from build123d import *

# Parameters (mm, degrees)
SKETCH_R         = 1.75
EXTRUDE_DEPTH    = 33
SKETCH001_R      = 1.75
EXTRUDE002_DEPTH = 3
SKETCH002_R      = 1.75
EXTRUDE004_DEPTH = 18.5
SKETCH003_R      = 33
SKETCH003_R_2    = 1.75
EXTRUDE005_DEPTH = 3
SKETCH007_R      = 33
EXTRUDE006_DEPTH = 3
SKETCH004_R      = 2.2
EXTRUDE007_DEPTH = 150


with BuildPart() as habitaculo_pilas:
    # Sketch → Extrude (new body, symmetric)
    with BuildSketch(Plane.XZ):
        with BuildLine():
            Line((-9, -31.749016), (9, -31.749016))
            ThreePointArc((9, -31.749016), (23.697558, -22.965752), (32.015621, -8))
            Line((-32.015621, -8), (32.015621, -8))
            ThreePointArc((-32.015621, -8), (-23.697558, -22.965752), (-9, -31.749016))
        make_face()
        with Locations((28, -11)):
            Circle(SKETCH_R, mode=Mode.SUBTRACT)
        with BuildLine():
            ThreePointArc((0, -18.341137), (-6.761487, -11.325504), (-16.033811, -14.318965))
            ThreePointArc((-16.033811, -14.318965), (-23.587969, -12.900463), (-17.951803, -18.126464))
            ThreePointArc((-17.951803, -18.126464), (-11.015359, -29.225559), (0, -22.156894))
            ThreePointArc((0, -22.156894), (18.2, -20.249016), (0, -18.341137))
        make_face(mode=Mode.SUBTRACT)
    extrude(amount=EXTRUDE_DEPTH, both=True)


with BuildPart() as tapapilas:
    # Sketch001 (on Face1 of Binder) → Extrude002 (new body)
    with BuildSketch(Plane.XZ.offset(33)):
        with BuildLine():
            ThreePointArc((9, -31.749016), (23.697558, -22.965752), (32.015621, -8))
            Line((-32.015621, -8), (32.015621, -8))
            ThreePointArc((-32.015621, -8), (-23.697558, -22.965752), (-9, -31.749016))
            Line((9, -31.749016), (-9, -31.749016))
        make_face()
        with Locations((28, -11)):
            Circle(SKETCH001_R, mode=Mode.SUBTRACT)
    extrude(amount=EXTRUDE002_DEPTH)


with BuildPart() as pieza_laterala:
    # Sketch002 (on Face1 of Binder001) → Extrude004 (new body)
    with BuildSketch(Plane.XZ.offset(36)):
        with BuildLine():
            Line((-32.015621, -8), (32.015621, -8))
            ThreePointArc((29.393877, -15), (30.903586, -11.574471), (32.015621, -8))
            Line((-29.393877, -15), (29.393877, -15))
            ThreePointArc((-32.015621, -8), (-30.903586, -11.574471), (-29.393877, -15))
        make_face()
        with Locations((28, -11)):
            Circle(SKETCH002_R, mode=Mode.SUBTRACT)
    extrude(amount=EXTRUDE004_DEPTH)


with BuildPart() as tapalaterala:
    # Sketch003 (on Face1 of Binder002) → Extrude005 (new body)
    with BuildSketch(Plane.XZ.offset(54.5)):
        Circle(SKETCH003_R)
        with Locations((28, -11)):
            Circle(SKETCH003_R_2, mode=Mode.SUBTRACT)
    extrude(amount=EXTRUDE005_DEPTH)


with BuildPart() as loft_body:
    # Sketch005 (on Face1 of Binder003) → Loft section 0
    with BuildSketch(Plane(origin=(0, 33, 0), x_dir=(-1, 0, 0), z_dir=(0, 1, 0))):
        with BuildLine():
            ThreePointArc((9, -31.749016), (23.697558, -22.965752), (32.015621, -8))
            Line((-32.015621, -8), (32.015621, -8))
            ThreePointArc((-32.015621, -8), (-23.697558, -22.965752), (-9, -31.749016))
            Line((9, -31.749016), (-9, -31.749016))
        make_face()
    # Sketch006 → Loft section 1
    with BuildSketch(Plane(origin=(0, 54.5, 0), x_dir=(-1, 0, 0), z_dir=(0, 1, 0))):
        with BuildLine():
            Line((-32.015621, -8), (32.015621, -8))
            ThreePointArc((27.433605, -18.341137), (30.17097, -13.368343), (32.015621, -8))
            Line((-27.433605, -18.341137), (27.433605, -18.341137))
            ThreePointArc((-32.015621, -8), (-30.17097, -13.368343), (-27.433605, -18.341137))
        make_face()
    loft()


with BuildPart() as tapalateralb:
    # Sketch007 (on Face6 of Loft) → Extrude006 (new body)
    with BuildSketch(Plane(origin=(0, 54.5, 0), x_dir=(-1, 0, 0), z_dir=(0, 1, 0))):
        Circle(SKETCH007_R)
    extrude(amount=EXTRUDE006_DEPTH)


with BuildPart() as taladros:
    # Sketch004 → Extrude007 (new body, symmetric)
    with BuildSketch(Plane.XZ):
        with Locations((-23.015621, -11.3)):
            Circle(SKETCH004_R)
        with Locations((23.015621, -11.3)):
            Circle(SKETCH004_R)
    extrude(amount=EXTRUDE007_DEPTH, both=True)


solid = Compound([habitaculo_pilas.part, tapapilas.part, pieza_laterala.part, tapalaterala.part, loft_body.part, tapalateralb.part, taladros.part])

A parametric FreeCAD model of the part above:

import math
import FreeCAD as App
import Part
import Sketcher

doc = App.newDocument("Part")
body = doc.addObject("PartDesign::Body", "Body")

# Sketch on XZ plane
sketch1 = body.newObject("Sketcher::SketchObject", "Sketch")
sketch1.AttachmentSupport = (doc.getObject("XZ_Plane"), [""])
sketch1.MapMode = "FlatFace"
sketch1.addGeometry(Part.LineSegment(App.Vector(-9, -31.749016, 0), App.Vector(9, -31.749016, 0)), False)
sketch1.addGeometry(Part.ArcOfCircle(Part.Circle(App.Vector(0.000001, -0.000002, 0), App.Vector(0, 0, 1), 32.999998), math.radians(-74.173381), math.radians(-14.029663)), False)
sketch1.addGeometry(Part.LineSegment(App.Vector(32.015621, -8, 0), App.Vector(-32.015621, -8, 0)), False)
sketch1.addGeometry(Part.ArcOfCircle(Part.Circle(App.Vector(-0.000001, -0.000002, 0), App.Vector(0, 0, 1), 32.999998), math.radians(-165.970337), math.radians(-105.826619)), False)
sketch1.addGeometry(Part.ArcOfCircle(Part.Circle(App.Vector(-9, -20.249016, 0), App.Vector(0, 0, 1), 9.2), math.radians(11.968747), math.radians(139.866503)), False)
sketch1.addGeometry(Part.ArcOfCircle(Part.Circle(App.Vector(9, -20.249015, 0), App.Vector(0, 0, 1), 9.2), math.radians(-168.031254), math.radians(168.031254)), False)
sketch1.addGeometry(Part.ArcOfCircle(Part.Circle(App.Vector(-9, -20.249016, 0), App.Vector(0, 0, 1), 9.2), math.radians(166.660998), math.radians(348.031255)), False)
sketch1.addGeometry(Part.ArcOfCircle(Part.Circle(App.Vector(-20.015621, -14.7, 0), App.Vector(0, 0, 1), 4), math.radians(5.466213), math.radians(301.061281)), False)
sketch1.addGeometry(Part.Circle(App.Vector(28, -11, 0), App.Vector(0, 0, 1), 1.75), False)
sketch1.addConstraint(Sketcher.Constraint("Coincident", 0, 2, 1, 1))
sketch1.addConstraint(Sketcher.Constraint("Coincident", 1, 2, 2, 1))
sketch1.addConstraint(Sketcher.Constraint("Coincident", 2, 2, 3, 1))
sketch1.addConstraint(Sketcher.Constraint("Coincident", 3, 2, 0, 1))
sketch1.addConstraint(Sketcher.Constraint("Coincident", 4, 1, 5, 2))
sketch1.addConstraint(Sketcher.Constraint("Coincident", 5, 1, 6, 2))
sketch1.addConstraint(Sketcher.Constraint("Coincident", 6, 1, 7, 2))
sketch1.addConstraint(Sketcher.Constraint("Coincident", 7, 1, 4, 2))
sketch1.addConstraint(Sketcher.Constraint("Horizontal", 0))
sketch1.addConstraint(Sketcher.Constraint("Horizontal", 2))
sketch1.addConstraint(Sketcher.Constraint("Coincident", 1, 3, -1, 1))
sketch1.addConstraint(Sketcher.Constraint("Coincident", 3, 3, -1, 1))
sketch1.addConstraint(Sketcher.Constraint("Coincident", 6, 3, 4, 3))
sketch1.addConstraint(Sketcher.Constraint("Equal", 1, 3))
sketch1.addConstraint(Sketcher.Constraint("Equal", 4, 5))
sketch1.addConstraint(Sketcher.Constraint("Equal", 5, 6))
sketch1.addConstraint(Sketcher.Constraint("Symmetric", 4, 3, 5, 3, -2))
sketch1.addConstraint(Sketcher.Constraint("Vertical", 5, 3, 0, 2))
sketch1.addConstraint(Sketcher.Constraint("Radius", 1, 32.999998))
sketch1.addConstraint(Sketcher.Constraint("Radius", 7, 4.0))
sketch1.addConstraint(Sketcher.Constraint("Diameter", 8, 3.5))
sketch1.addConstraint(Sketcher.Constraint("Radius", 4, 9.2))
sketch1.addConstraint(Sketcher.Constraint("DistanceX", 0, 1, 0, 2, 18.0))
sketch1.addConstraint(Sketcher.Constraint("DistanceX", -1, 1, 8, 3, 28.0))
sketch1.addConstraint(Sketcher.Constraint("DistanceY", 8, 3, -1, 1, 11.0))
sketch1.addConstraint(Sketcher.Constraint("DistanceY", 1, 2, -1, 1, 8.0))
sketch1.addConstraint(Sketcher.Constraint("DistanceX", 2, 2, 7, 3, 12.0))
sketch1.addConstraint(Sketcher.Constraint("DistanceY", 7, 3, -1, 1, 14.7))
sketch1.addConstraint(Sketcher.Constraint("DistanceY", 0, 2, 5, 3, 11.500001))
pad1 = body.newObject("PartDesign::Pad", "Pad")
pad1.Profile = sketch1
pad1.Length = 66
pad1.Midplane = True
body2 = doc.addObject("PartDesign::Body", "Body001")

# Sketch on XZ plane
sketch2 = body2.newObject("Sketcher::SketchObject", "Sketch001")
sketch2.AttachmentSupport = (doc.getObject("XZ_Plane001"), [""])
sketch2.MapMode = "FlatFace"
sketch2.AttachmentOffset = App.Placement(App.Vector(0, 0, 33), App.Rotation())
sketch2.addGeometry(Part.ArcOfCircle(Part.Circle(App.Vector(0.000001, -0.000002, 0), App.Vector(0, 0, 1), 32.999998), math.radians(-74.173381), math.radians(-14.029663)), False)
sketch2.addGeometry(Part.LineSegment(App.Vector(32.015621, -8, 0), App.Vector(-32.015621, -8, 0)), False)
sketch2.addGeometry(Part.ArcOfCircle(Part.Circle(App.Vector(-0.000001, -0.000002, 0), App.Vector(0, 0, 1), 32.999998), math.radians(-165.970337), math.radians(-105.826619)), False)
sketch2.addGeometry(Part.LineSegment(App.Vector(-9, -31.749016, 0), App.Vector(9, -31.749016, 0)), False)
sketch2.addGeometry(Part.Circle(App.Vector(28, -11, 0), App.Vector(0, 0, 1), 1.75), False)
sketch2.addConstraint(Sketcher.Constraint("Coincident", 0, 2, 1, 1))
sketch2.addConstraint(Sketcher.Constraint("Coincident", 1, 2, 2, 1))
sketch2.addConstraint(Sketcher.Constraint("Coincident", 2, 2, 3, 1))
sketch2.addConstraint(Sketcher.Constraint("Coincident", 3, 2, 0, 1))
sketch2.addConstraint(Sketcher.Constraint("Horizontal", 1))
sketch2.addConstraint(Sketcher.Constraint("Horizontal", 3))
sketch2.addConstraint(Sketcher.Constraint("Coincident", 0, 3, -1, 1))
sketch2.addConstraint(Sketcher.Constraint("Coincident", 2, 3, -1, 1))
sketch2.addConstraint(Sketcher.Constraint("Equal", 0, 2))
sketch2.addConstraint(Sketcher.Constraint("Radius", 0, 32.999998))
sketch2.addConstraint(Sketcher.Constraint("Diameter", 4, 3.5))
sketch2.addConstraint(Sketcher.Constraint("DistanceX", 3, 1, 3, 2, 18.0))
sketch2.addConstraint(Sketcher.Constraint("DistanceX", -1, 1, 4, 3, 28.0))
sketch2.addConstraint(Sketcher.Constraint("DistanceY", 4, 3, -1, 1, 11.0))
sketch2.addConstraint(Sketcher.Constraint("DistanceY", 0, 2, -1, 1, 8.0))
pad2 = body2.newObject("PartDesign::Pad", "Pad001")
pad2.Profile = sketch2
pad2.Length = 3
body3 = doc.addObject("PartDesign::Body", "Body002")

# Sketch on XZ plane
sketch3 = body3.newObject("Sketcher::SketchObject", "Sketch002")
sketch3.AttachmentSupport = (doc.getObject("XZ_Plane002"), [""])
sketch3.MapMode = "FlatFace"
sketch3.AttachmentOffset = App.Placement(App.Vector(0, 0, 36), App.Rotation())
sketch3.addGeometry(Part.LineSegment(App.Vector(32.015621, -8, 0), App.Vector(-32.015621, -8, 0)), False)
sketch3.addGeometry(Part.ArcOfCircle(Part.Circle(App.Vector(-0.000022, -0.000009, 0), App.Vector(0, 0, 1), 32.999976), math.radians(-165.970341), math.radians(-152.964306)), False)
sketch3.addGeometry(Part.LineSegment(App.Vector(-29.393877, -15, 0), App.Vector(29.393877, -15, 0)), False)
sketch3.addGeometry(Part.ArcOfCircle(Part.Circle(App.Vector(0.000022, -0.000009, 0), App.Vector(0, 0, 1), 32.999976), math.radians(-27.035694), math.radians(-14.029659)), False)
sketch3.addGeometry(Part.Circle(App.Vector(28, -11, 0), App.Vector(0, 0, 1), 1.75), False)
sketch3.addConstraint(Sketcher.Constraint("Coincident", 0, 2, 1, 1))
sketch3.addConstraint(Sketcher.Constraint("Coincident", 1, 2, 2, 1))
sketch3.addConstraint(Sketcher.Constraint("Coincident", 2, 2, 3, 1))
sketch3.addConstraint(Sketcher.Constraint("Coincident", 3, 2, 0, 1))
sketch3.addConstraint(Sketcher.Constraint("Horizontal", 0))
sketch3.addConstraint(Sketcher.Constraint("Horizontal", 2))
sketch3.addConstraint(Sketcher.Constraint("Equal", 1, 3))
sketch3.addConstraint(Sketcher.Constraint("Symmetric", 1, 3, 3, 3, -2))
sketch3.addConstraint(Sketcher.Constraint("Diameter", 4, 3.5))
sketch3.addConstraint(Sketcher.Constraint("DistanceX", -1, 1, 4, 3, 28.0))
sketch3.addConstraint(Sketcher.Constraint("DistanceY", 4, 3, -1, 1, 11.0))
sketch3.addConstraint(Sketcher.Constraint("DistanceY", 0, 2, -1, 1, 8.0))
sketch3.addConstraint(Sketcher.Constraint("DistanceY", 1, 2, -1, 1, 15.0))
sketch3.addConstraint(Sketcher.Constraint("Radius", 1, 32.999976))
sketch3.addConstraint(Sketcher.Constraint("DistanceX", 0, 2, 1, 3, 32.015599))
sketch3.addConstraint(Sketcher.Constraint("DistanceX", 1, 2, 3, 3, 29.393899))
pad3 = body3.newObject("PartDesign::Pad", "Pad002")
pad3.Profile = sketch3
pad3.Length = 18.5
body4 = doc.addObject("PartDesign::Body", "Body003")

# Sketch on XZ plane
sketch4 = body4.newObject("Sketcher::SketchObject", "Sketch003")
sketch4.AttachmentSupport = (doc.getObject("XZ_Plane003"), [""])
sketch4.MapMode = "FlatFace"
sketch4.AttachmentOffset = App.Placement(App.Vector(0, 0, 54.5), App.Rotation())
sketch4.addGeometry(Part.Circle(App.Vector(0, 0, 0), App.Vector(0, 0, 1), 33), False)
sketch4.addGeometry(Part.Circle(App.Vector(28, -11, 0), App.Vector(0, 0, 1), 1.75), False)
sketch4.addConstraint(Sketcher.Constraint("Coincident", 0, 3, -1, 1))
sketch4.addConstraint(Sketcher.Constraint("Diameter", 0, 66.0))
sketch4.addConstraint(Sketcher.Constraint("Diameter", 1, 3.5))
sketch4.addConstraint(Sketcher.Constraint("DistanceX", -1, 1, 1, 3, 28.0))
sketch4.addConstraint(Sketcher.Constraint("DistanceY", 1, 3, -1, 1, 11.0))
pad4 = body4.newObject("PartDesign::Pad", "Pad003")
pad4.Profile = sketch4
pad4.Length = 3
body5 = doc.addObject("PartDesign::Body", "Body004")

# Sketch on XZ plane
sketch5 = body5.newObject("Sketcher::SketchObject", "Sketch004")
sketch5.AttachmentSupport = (doc.getObject("XZ_Plane004"), [""])
sketch5.MapMode = "FlatFace"
sketch5.AttachmentOffset = App.Placement(App.Vector(0, 0, -33), App.Rotation())
sketch5.addGeometry(Part.ArcOfCircle(Part.Circle(App.Vector(-0.000001, -0.000002, 0), App.Vector(0, 0, 1), 32.999998), math.radians(-165.970337), math.radians(-105.826619)), False)
sketch5.addGeometry(Part.LineSegment(App.Vector(-32.015621, -8, 0), App.Vector(32.015621, -8, 0)), False)
sketch5.addGeometry(Part.ArcOfCircle(Part.Circle(App.Vector(0.000001, -0.000002, 0), App.Vector(0, 0, 1), 32.999998), math.radians(-74.173381), math.radians(-14.029663)), False)
sketch5.addGeometry(Part.LineSegment(App.Vector(9, -31.749016, 0), App.Vector(-9, -31.749016, 0)), False)
sketch5.addConstraint(Sketcher.Constraint("Coincident", 0, 1, 1, 1))
sketch5.addConstraint(Sketcher.Constraint("Coincident", 1, 2, 2, 2))
sketch5.addConstraint(Sketcher.Constraint("Coincident", 2, 1, 3, 1))
sketch5.addConstraint(Sketcher.Constraint("Coincident", 3, 2, 0, 2))
sketch5.addConstraint(Sketcher.Constraint("Horizontal", 1))
sketch5.addConstraint(Sketcher.Constraint("Horizontal", 3))
sketch5.addConstraint(Sketcher.Constraint("Coincident", 0, 3, -1, 1))
sketch5.addConstraint(Sketcher.Constraint("Coincident", 2, 3, -1, 1))
sketch5.addConstraint(Sketcher.Constraint("Equal", 0, 2))
sketch5.addConstraint(Sketcher.Constraint("Radius", 0, 32.999998))
sketch5.addConstraint(Sketcher.Constraint("DistanceX", 3, 2, 3, 1, 18.0))
sketch5.addConstraint(Sketcher.Constraint("DistanceY", 0, 1, -1, 1, 8.0))

# Sketch on XZ plane
sketch6 = body5.newObject("Sketcher::SketchObject", "Sketch005")
sketch6.AttachmentSupport = (doc.getObject("XZ_Plane004"), [""])
sketch6.MapMode = "FlatFace"
sketch6.AttachmentOffset = App.Placement(App.Vector(0, 0, -54.5), App.Rotation())
sketch6.addGeometry(Part.LineSegment(App.Vector(-32.015621, -8, 0), App.Vector(32.015621, -8, 0)), False)
sketch6.addGeometry(Part.ArcOfCircle(Part.Circle(App.Vector(0.000034, -0.000015, 0), App.Vector(0, 0, 1), 32.999963), math.radians(-33.765296), math.radians(-14.029654)), False)
sketch6.addGeometry(Part.LineSegment(App.Vector(27.433605, -18.341137, 0), App.Vector(-27.433605, -18.341137, 0)), False)
sketch6.addGeometry(Part.ArcOfCircle(Part.Circle(App.Vector(-0.000034, -0.000015, 0), App.Vector(0, 0, 1), 32.999963), math.radians(-165.970346), math.radians(-146.234704)), False)
sketch6.addConstraint(Sketcher.Constraint("Coincident", 0, 2, 1, 2))
sketch6.addConstraint(Sketcher.Constraint("Coincident", 1, 1, 2, 1))
sketch6.addConstraint(Sketcher.Constraint("Coincident", 2, 2, 3, 2))
sketch6.addConstraint(Sketcher.Constraint("Coincident", 3, 1, 0, 1))
sketch6.addConstraint(Sketcher.Constraint("Horizontal", 0))
sketch6.addConstraint(Sketcher.Constraint("Horizontal", 2))
sketch6.addConstraint(Sketcher.Constraint("Equal", 1, 3))
sketch6.addConstraint(Sketcher.Constraint("Symmetric", 1, 3, 3, 3, -2))
sketch6.addConstraint(Sketcher.Constraint("DistanceY", 0, 2, -1, 1, 8.0))
sketch6.addConstraint(Sketcher.Constraint("Radius", 1, 32.999963))
sketch6.addConstraint(Sketcher.Constraint("DistanceX", 2, 2, 2, 1, 54.86721))
sketch6.addConstraint(Sketcher.Constraint("DistanceX", 0, 1, 0, 2, 64.031242))
sketch6.addConstraint(Sketcher.Constraint("DistanceX", 1, 3, 1, 1, 27.433571))

additiveloft = body5.newObject("PartDesign::AdditiveLoft", "AdditiveLoft")
additiveloft.Profile = sketch5
additiveloft.Sections = [sketch6]
body6 = doc.addObject("PartDesign::Body", "Body005")

# Sketch on XZ plane
sketch7 = body6.newObject("Sketcher::SketchObject", "Sketch006")
sketch7.AttachmentSupport = (doc.getObject("XZ_Plane005"), [""])
sketch7.MapMode = "FlatFace"
sketch7.AttachmentOffset = App.Placement(App.Vector(0, 0, -54.5), App.Rotation())
sketch7.addGeometry(Part.Circle(App.Vector(0, 0, 0), App.Vector(0, 0, 1), 33), False)
sketch7.addConstraint(Sketcher.Constraint("Coincident", 0, 3, -1, 1))
sketch7.addConstraint(Sketcher.Constraint("Diameter", 0, 66.0))
pad5 = body6.newObject("PartDesign::Pad", "Pad004")
pad5.Profile = sketch7
pad5.Length = 3
pad5.Reversed = True
body7 = doc.addObject("PartDesign::Body", "Body006")
body7.AllowCompound = True

# Sketch on XZ plane
sketch8 = body7.newObject("Sketcher::SketchObject", "Sketch007")
sketch8.AttachmentSupport = (doc.getObject("XZ_Plane006"), [""])
sketch8.MapMode = "FlatFace"
sketch8.addGeometry(Part.Circle(App.Vector(-23.015621, -11.3, 0), App.Vector(0, 0, 1), 2.2), False)
sketch8.addGeometry(Part.Circle(App.Vector(23.015621, -11.3, 0), App.Vector(0, 0, 1), 2.2), False)
sketch8.addConstraint(Sketcher.Constraint("Equal", 0, 1))
sketch8.addConstraint(Sketcher.Constraint("Symmetric", 0, 3, 1, 3, -2))
sketch8.addConstraint(Sketcher.Constraint("Diameter", 0, 4.4))
sketch8.addConstraint(Sketcher.Constraint("DistanceY", 0, 3, -1, 1, 11.3))
sketch8.addConstraint(Sketcher.Constraint("DistanceX", 0, 3, -1, 1, 23.015621))
pad6 = body7.newObject("PartDesign::Pad", "Pad005")
pad6.Profile = sketch8
pad6.Length = 300
pad6.Midplane = True

doc.recompute()
